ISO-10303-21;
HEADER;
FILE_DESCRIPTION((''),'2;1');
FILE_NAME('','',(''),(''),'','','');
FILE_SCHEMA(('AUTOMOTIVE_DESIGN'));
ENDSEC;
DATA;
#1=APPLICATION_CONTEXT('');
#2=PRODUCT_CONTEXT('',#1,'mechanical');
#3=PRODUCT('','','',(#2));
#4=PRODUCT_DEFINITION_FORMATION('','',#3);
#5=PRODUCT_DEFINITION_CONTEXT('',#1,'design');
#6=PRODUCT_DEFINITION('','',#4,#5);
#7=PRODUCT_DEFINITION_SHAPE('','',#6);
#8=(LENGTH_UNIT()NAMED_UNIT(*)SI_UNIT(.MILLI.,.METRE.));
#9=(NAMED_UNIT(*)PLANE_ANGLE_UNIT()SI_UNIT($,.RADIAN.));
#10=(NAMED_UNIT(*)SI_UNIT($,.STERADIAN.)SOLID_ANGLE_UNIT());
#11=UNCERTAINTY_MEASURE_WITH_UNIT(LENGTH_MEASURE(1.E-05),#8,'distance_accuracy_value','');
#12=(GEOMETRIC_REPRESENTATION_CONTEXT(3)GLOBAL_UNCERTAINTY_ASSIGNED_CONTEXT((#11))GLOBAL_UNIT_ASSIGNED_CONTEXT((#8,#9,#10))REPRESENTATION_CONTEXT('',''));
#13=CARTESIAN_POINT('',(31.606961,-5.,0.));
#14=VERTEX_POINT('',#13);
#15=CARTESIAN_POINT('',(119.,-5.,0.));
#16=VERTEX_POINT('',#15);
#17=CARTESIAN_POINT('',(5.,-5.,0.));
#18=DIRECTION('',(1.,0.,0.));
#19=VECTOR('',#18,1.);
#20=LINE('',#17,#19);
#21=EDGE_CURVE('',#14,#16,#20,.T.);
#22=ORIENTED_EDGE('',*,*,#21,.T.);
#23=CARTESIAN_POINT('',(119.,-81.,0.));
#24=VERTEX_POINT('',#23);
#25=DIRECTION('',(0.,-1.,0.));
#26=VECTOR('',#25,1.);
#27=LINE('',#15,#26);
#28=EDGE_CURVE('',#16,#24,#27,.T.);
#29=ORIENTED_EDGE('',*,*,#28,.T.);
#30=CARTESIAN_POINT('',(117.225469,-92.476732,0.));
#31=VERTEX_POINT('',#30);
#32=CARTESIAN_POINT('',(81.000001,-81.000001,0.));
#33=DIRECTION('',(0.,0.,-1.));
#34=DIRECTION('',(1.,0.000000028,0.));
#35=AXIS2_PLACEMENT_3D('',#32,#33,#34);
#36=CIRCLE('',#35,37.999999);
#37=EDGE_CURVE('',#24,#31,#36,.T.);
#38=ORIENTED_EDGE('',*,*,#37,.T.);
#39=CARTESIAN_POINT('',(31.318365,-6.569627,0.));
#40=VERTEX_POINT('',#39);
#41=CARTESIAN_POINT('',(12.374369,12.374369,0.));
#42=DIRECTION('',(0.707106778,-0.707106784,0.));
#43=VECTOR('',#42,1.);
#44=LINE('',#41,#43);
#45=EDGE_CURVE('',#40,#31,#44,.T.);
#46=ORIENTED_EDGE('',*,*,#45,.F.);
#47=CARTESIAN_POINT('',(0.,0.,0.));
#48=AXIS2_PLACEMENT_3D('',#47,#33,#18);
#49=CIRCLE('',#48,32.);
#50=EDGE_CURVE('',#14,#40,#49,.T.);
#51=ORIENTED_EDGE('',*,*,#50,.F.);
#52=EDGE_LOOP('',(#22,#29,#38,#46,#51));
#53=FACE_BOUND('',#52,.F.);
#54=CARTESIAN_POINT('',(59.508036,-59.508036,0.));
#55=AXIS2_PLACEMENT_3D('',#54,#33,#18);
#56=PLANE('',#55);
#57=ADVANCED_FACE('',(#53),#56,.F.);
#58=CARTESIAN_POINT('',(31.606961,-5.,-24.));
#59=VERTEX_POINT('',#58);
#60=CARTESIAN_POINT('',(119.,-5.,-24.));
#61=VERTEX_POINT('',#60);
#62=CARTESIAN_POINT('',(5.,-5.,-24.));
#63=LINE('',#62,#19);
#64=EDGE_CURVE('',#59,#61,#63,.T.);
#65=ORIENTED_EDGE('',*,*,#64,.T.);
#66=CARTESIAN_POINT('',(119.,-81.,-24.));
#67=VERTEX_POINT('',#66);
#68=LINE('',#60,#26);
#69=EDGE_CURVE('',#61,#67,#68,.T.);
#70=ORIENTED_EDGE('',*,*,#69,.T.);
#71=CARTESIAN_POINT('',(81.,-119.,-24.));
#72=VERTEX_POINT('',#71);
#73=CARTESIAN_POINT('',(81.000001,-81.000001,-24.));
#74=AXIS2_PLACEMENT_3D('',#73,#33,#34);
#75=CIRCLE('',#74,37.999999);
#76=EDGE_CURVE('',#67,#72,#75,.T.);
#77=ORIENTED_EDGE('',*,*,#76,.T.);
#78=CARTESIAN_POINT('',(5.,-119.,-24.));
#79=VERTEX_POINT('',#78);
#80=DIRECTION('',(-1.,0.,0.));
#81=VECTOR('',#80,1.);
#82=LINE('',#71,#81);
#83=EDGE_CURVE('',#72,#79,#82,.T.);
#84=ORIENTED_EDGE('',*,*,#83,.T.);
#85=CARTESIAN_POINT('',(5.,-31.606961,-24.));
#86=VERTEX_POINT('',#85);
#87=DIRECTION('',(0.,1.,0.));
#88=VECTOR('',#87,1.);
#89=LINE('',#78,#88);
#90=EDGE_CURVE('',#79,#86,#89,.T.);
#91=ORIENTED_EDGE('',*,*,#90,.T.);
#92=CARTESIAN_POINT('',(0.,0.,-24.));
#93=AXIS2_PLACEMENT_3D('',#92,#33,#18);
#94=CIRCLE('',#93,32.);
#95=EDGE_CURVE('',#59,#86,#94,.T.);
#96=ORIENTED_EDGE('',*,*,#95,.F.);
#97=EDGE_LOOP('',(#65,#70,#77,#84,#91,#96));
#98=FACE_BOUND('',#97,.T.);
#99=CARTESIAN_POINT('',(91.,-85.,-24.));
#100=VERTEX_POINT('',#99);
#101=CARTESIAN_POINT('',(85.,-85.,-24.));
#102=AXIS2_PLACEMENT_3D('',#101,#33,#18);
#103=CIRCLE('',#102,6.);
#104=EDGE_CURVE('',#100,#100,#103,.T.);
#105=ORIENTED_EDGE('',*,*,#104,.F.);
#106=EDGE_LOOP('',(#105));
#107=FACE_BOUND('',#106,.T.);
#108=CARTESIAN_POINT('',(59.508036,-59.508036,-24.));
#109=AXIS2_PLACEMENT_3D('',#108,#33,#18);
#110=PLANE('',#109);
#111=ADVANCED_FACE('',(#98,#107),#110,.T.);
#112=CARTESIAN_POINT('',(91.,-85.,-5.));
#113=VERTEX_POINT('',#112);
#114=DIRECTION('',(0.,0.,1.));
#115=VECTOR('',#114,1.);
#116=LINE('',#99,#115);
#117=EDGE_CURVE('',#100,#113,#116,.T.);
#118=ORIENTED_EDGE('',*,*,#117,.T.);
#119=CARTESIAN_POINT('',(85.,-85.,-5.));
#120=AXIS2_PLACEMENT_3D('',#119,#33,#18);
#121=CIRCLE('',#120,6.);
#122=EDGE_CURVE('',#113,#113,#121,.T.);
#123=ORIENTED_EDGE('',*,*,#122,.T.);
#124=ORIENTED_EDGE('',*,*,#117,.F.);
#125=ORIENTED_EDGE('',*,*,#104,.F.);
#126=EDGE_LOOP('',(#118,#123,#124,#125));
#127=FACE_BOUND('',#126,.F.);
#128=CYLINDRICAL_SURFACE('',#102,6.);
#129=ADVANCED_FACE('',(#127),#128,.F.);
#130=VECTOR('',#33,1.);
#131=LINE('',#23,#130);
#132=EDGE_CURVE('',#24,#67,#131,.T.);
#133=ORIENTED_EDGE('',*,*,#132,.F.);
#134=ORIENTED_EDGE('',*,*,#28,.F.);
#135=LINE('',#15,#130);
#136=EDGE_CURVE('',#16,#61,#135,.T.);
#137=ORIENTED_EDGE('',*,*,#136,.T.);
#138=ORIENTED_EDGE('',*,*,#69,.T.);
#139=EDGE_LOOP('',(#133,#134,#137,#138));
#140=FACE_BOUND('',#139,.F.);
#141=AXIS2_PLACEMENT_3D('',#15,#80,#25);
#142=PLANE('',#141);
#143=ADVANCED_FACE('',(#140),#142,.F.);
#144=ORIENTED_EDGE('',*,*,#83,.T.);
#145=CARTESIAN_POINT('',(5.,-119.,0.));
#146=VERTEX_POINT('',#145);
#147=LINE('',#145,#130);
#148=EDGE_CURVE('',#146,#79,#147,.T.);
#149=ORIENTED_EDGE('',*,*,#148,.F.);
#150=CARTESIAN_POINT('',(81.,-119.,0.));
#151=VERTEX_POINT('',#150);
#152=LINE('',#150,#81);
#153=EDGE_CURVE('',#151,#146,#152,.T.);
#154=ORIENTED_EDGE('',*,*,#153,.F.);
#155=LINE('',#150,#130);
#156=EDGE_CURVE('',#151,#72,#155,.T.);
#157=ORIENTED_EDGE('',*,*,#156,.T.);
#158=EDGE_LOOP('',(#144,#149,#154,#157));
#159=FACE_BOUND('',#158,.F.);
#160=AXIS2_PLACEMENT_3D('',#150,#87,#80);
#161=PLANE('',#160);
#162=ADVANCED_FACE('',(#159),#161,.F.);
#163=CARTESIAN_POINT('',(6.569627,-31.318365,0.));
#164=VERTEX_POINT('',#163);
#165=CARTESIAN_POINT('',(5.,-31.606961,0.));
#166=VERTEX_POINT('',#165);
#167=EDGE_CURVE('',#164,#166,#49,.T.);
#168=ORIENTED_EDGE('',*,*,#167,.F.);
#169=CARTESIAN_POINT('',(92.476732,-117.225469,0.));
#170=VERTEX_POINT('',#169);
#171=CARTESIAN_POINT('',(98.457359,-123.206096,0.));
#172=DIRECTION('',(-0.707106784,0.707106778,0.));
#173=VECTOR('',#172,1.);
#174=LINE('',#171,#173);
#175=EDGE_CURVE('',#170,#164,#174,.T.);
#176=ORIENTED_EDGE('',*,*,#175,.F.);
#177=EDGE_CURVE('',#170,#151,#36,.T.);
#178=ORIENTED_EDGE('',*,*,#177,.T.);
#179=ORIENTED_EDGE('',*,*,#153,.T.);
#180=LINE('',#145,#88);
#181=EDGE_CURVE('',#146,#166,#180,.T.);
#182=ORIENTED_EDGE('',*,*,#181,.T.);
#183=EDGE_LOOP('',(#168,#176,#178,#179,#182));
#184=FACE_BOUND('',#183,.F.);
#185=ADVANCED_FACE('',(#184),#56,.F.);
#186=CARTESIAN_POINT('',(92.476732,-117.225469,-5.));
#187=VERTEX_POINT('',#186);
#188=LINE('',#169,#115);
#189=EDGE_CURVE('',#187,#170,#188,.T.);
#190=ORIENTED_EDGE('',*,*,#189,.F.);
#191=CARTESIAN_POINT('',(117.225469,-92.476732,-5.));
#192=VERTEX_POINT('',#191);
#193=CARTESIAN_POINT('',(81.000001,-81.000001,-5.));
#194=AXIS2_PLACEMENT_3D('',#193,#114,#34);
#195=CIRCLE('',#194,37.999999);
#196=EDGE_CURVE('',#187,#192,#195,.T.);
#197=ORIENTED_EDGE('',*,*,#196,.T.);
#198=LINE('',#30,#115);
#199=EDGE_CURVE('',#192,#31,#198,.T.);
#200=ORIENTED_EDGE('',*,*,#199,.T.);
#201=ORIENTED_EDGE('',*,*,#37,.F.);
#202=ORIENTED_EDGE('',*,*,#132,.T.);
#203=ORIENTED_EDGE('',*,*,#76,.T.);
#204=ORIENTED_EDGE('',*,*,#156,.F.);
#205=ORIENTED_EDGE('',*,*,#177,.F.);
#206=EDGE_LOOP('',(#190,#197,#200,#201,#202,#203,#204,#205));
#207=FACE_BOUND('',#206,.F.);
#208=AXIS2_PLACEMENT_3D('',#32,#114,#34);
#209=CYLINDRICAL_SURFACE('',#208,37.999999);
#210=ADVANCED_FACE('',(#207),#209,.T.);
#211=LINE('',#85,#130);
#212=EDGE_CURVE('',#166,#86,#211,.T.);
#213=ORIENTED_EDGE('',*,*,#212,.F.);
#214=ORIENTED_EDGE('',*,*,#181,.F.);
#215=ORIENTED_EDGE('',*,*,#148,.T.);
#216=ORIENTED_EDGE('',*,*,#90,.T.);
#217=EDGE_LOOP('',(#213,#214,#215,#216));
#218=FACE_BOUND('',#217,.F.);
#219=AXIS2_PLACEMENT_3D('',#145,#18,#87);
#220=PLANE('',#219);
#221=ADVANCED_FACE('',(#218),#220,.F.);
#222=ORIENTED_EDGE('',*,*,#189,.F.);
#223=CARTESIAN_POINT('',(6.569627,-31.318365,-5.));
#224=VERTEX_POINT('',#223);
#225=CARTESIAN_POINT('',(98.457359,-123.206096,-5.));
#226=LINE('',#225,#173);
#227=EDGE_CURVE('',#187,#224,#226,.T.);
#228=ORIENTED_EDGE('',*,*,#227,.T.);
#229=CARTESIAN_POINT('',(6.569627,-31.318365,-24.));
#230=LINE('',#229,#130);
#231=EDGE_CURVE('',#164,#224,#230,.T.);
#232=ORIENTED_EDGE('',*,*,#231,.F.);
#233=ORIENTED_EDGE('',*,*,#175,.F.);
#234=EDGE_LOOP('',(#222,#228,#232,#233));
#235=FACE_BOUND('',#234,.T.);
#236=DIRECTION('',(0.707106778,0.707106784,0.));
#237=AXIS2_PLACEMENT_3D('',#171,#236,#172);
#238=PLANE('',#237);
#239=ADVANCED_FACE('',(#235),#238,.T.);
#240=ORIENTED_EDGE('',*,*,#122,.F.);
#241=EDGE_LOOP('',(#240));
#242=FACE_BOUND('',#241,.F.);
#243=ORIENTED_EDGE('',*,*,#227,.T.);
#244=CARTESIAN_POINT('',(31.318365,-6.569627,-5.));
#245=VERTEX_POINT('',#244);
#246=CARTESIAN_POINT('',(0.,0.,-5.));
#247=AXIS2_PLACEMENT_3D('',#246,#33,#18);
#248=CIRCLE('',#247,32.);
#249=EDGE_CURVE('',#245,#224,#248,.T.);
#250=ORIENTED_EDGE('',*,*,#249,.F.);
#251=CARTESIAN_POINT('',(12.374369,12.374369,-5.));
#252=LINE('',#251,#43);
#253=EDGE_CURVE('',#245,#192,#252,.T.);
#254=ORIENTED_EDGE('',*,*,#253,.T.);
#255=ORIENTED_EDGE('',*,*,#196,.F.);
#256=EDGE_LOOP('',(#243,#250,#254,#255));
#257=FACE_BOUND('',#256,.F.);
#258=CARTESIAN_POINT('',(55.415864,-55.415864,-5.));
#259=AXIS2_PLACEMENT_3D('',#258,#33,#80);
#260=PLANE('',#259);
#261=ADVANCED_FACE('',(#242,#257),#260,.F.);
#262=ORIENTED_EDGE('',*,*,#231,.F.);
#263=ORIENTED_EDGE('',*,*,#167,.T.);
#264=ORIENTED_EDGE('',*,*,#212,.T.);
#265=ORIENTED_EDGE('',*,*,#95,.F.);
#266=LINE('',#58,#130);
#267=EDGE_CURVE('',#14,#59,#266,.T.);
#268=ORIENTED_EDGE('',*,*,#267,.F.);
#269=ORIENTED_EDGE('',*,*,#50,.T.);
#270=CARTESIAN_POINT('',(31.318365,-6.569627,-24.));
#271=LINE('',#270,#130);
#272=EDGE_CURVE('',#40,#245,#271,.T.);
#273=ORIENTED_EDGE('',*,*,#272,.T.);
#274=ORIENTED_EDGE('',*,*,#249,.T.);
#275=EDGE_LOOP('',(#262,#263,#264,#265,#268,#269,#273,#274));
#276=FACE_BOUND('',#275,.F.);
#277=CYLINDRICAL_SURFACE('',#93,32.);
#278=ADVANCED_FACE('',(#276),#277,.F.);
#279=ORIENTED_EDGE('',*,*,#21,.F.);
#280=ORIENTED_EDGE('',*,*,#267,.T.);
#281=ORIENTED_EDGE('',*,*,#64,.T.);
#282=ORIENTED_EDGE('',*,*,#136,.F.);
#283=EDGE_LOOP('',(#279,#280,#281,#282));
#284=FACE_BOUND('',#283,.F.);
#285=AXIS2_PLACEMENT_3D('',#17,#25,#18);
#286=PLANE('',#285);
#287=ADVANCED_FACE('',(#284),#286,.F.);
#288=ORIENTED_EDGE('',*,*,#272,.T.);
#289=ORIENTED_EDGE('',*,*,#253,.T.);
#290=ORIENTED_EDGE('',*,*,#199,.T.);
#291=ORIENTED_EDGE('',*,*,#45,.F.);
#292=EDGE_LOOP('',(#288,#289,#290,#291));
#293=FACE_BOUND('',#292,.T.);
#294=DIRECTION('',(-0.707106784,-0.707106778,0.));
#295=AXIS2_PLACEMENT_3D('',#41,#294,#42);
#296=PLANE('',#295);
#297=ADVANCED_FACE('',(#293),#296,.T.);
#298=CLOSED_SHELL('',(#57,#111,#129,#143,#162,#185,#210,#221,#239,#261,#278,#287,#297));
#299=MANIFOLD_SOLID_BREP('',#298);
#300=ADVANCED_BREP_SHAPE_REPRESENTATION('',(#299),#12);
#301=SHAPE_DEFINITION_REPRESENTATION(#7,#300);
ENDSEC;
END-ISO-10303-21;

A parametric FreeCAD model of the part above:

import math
import FreeCAD as App
import Part
import Sketcher
from FreeCAD import Vector
Q = App.Units.Quantity

doc = App.newDocument("Part")
body = doc.addObject("PartDesign::Body", "Body")

# Sketch on XY plane
sketch1 = doc.addObject("Sketcher::SketchObject", "Sketch")
body.addObject(sketch1)
sketch1.AttachmentSupport = (doc.XY_Plane, [""])
sketch1.MapMode = "FlatFace"
sketch1.addGeometry([
    Part.LineSegment(Vector(5, 5, 0), Vector(119, 5, 0)),  # 0
    Part.LineSegment(Vector(119, 5, 0), Vector(119, 81, 0)),  # 1
    Part.ArcOfCircle(Part.Circle(Vector(81.000001, 81.000001, 0), Vector(0, 0, 1), 37.999999), math.radians(-0.000002), math.radians(90.000002)),  # 2
    Part.LineSegment(Vector(81, 119, 0), Vector(5, 119, 0)),  # 3
    Part.LineSegment(Vector(5, 119, 0), Vector(5, 5, 0)),  # 4
], False)
sketch1.addConstraint([
    Sketcher.Constraint("Coincident", 0, 2, 1, 1),
    Sketcher.Constraint("Tangent", 1, 2, 2, 1),
    Sketcher.Constraint("Tangent", 2, 2, 3, 1),
    Sketcher.Constraint("Coincident", 3, 2, 4, 1),
    Sketcher.Constraint("Coincident", 4, 2, 0, 1),
    Sketcher.Constraint("Horizontal", 0),
    Sketcher.Constraint("Vertical", 1),
    Sketcher.Constraint("Horizontal", 3),
    Sketcher.Constraint("Vertical", 4),
    Sketcher.Constraint("Equal", 3, 1),
    Sketcher.Constraint("Radius", 2, 37.999999),
    Sketcher.Constraint("DistanceX", 0, 1, 0, 2, 114.0),
    Sketcher.Constraint("DistanceX", -1, 1, 2, 3, 81.000001),
    Sketcher.Constraint("DistanceY", -1, 1, 2, 3, 81.000001),
])
pad1 = doc.addObject("PartDesign::Pad", "Pad")
body.addObject(pad1)
pad1.Profile = sketch1
pad1.Length = 24

# Sketch on XY plane
sketch2 = doc.addObject("Sketcher::SketchObject", "Sketch001")
body.addObject(sketch2)
sketch2.AttachmentSupport = (doc.XY_Plane, [""])
sketch2.MapMode = "FlatFace"
sketch2.addGeometry([
    Part.LineSegment(Vector(123.206096, 98.457359, 0), Vector(12.374369, -12.374369, 0)),
    Part.LineSegment(Vector(12.374369, -12.374369, 0), Vector(-12.374369, 12.374369, 0)),
    Part.LineSegment(Vector(-12.374369, 12.374369, 0), Vector(98.457359, 123.206096, 0)),
    Part.LineSegment(Vector(98.457359, 123.206096, 0), Vector(123.206096, 98.457359, 0)),
], False)
sketch2.addConstraint([
    Sketcher.Constraint("Coincident", 0, 2, 1, 1),
    Sketcher.Constraint("Coincident", 1, 2, 2, 1),
    Sketcher.Constraint("Coincident", 2, 2, 3, 1),
    Sketcher.Constraint("Coincident", 3, 2, 0, 1),
    Sketcher.Constraint("Symmetric", 0, 2, 1, 2, -1, 1),
    Sketcher.Constraint("Perpendicular", 0, 1),
    Sketcher.Constraint("Perpendicular", 1, 2),
    Sketcher.Constraint("Perpendicular", 2, 3),
    Sketcher.Constraint("Angle", 0, Q("-135 deg")),
    Sketcher.Constraint("Distance", 1, 35.000001),
    Sketcher.Constraint("DistanceX", -1, 1, 2, 2, 98.457359),
])
pocket1 = doc.addObject("PartDesign::Pocket", "Pocket")
body.addObject(pocket1)
pocket1.Profile = sketch2
pocket1.Length = 5
pocket1.Reversed = True

# Sketch on XY plane
sketch3 = doc.addObject("Sketcher::SketchObject", "Sketch002")
body.addObject(sketch3)
sketch3.AttachmentSupport = (doc.XY_Plane, [""])
sketch3.MapMode = "FlatFace"
sketch3.AttachmentOffset = App.Placement(Vector(0, 0, 24), App.Rotation())
sketch3.addGeometry([
    Part.Circle(Vector(0, 0, 0), Vector(0, 0, 1), 32),
    Part.Circle(Vector(85, 85, 0), Vector(0, 0, 1), 6),
], False)
sketch3.addConstraint([
    Sketcher.Constraint("Coincident", 0, 3, -1, 1),
    Sketcher.Constraint("Diameter", 0, 64.0),
    Sketcher.Constraint("Diameter", 1, 12.0),
    Sketcher.Constraint("DistanceX", -1, 1, 1, 3, 85.0),
    Sketcher.Constraint("DistanceY", -1, 1, 1, 3, 85.0),
])
pocket2 = doc.addObject("PartDesign::Pocket", "Pocket001")
body.addObject(pocket2)
pocket2.Profile = sketch3
pocket2.Length = 24
body2 = doc.addObject("PartDesign::Body", "Body001")
doc.recompute()

body.Placement = App.Placement(Vector(0, 0, 0), App.Rotation(Vector(1, 0, 0), 180))
boolean = doc.addObject("PartDesign::Boolean", "Boolean")
body2.addObject(boolean)
boolean.Type = "Fuse"
boolean.addObjects([body])

doc.recompute()
